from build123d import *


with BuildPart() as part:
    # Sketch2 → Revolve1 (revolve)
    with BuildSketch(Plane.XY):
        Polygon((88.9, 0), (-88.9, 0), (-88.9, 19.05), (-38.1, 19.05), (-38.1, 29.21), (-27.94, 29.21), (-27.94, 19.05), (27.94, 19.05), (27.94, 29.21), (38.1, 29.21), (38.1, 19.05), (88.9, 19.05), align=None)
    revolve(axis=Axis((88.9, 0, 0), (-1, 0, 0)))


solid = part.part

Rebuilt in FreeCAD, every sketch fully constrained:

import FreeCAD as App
import Part
import Sketcher
Q = App.Units.Quantity


def add_polygon(sketch, points):
    """Adds a closed chain of lines whose ends are joined by coincident constraints."""
    first, n = sketch.GeometryCount, len(points)
    for a, b in zip(points, points[1:] + points[:1]):
        sketch.addGeometry(Part.LineSegment(App.Vector(*a, 0), App.Vector(*b, 0)), False)
    for i in range(n):
        sketch.addConstraint(Sketcher.Constraint("Coincident", first + i, 2, first + (i + 1) % n, 1))

doc = App.newDocument("Part")
body = doc.addObject("PartDesign::Body", "Body")

sketch1 = body.newObject("Sketcher::SketchObject", "Sketch")
sketch1.AttachmentSupport = (doc.getObject("XY_Plane"), [""])
sketch1.MapMode = "FlatFace"
add_polygon(sketch1, [(-89, 0), (89, 0), (89, 19), (38, 19), (38, 29), (28, 29), (28, 19), (-28, 19), (-28, 29), (-38, 29), (-38, 19), (-89, 19)])
sketch1.addConstraint([
    Sketcher.Constraint("Horizontal", 0),
    Sketcher.Constraint("Vertical", 1),
    Sketcher.Constraint("Horizontal", 2),
    Sketcher.Constraint("Vertical", 3),
    Sketcher.Constraint("Horizontal", 4),
    Sketcher.Constraint("Vertical", 5),
    Sketcher.Constraint("Horizontal", 6),
    Sketcher.Constraint("Vertical", 7),
    Sketcher.Constraint("Horizontal", 8),
    Sketcher.Constraint("Vertical", 9),
    Sketcher.Constraint("Horizontal", 10),
    Sketcher.Constraint("Vertical", 11),
    Sketcher.Constraint("Symmetric", 0, 2, 11, 2, -1, 1),
    Sketcher.Constraint("Symmetric", 4, 2, 7, 2, -2),
    Sketcher.Constraint("Symmetric", 2, 2, 9, 2, -2),
    Sketcher.Constraint("Horizontal", 2, 2, 5, 2),
    Sketcher.Constraint("Equal", 8, 3),
    Sketcher.Constraint("DistanceX", 0, 1, 0, 2, Q("7 in")),
    Sketcher.Constraint("DistanceX", 2, 2, 2, 1, Q("2 in")),
    Sketcher.Constraint("DistanceX", 4, 2, 4, 1, Q("0.4 in")),
    Sketcher.Constraint("DistanceY", 1, 1, 1, 2, Q("0.75 in")),
])
revolution = body.newObject("PartDesign::Revolution", "Revolution")
revolution.Profile = sketch1
revolution.ReferenceAxis = (sketch1, ["H_Axis"])
revolution.Angle = 360

doc.recompute()
